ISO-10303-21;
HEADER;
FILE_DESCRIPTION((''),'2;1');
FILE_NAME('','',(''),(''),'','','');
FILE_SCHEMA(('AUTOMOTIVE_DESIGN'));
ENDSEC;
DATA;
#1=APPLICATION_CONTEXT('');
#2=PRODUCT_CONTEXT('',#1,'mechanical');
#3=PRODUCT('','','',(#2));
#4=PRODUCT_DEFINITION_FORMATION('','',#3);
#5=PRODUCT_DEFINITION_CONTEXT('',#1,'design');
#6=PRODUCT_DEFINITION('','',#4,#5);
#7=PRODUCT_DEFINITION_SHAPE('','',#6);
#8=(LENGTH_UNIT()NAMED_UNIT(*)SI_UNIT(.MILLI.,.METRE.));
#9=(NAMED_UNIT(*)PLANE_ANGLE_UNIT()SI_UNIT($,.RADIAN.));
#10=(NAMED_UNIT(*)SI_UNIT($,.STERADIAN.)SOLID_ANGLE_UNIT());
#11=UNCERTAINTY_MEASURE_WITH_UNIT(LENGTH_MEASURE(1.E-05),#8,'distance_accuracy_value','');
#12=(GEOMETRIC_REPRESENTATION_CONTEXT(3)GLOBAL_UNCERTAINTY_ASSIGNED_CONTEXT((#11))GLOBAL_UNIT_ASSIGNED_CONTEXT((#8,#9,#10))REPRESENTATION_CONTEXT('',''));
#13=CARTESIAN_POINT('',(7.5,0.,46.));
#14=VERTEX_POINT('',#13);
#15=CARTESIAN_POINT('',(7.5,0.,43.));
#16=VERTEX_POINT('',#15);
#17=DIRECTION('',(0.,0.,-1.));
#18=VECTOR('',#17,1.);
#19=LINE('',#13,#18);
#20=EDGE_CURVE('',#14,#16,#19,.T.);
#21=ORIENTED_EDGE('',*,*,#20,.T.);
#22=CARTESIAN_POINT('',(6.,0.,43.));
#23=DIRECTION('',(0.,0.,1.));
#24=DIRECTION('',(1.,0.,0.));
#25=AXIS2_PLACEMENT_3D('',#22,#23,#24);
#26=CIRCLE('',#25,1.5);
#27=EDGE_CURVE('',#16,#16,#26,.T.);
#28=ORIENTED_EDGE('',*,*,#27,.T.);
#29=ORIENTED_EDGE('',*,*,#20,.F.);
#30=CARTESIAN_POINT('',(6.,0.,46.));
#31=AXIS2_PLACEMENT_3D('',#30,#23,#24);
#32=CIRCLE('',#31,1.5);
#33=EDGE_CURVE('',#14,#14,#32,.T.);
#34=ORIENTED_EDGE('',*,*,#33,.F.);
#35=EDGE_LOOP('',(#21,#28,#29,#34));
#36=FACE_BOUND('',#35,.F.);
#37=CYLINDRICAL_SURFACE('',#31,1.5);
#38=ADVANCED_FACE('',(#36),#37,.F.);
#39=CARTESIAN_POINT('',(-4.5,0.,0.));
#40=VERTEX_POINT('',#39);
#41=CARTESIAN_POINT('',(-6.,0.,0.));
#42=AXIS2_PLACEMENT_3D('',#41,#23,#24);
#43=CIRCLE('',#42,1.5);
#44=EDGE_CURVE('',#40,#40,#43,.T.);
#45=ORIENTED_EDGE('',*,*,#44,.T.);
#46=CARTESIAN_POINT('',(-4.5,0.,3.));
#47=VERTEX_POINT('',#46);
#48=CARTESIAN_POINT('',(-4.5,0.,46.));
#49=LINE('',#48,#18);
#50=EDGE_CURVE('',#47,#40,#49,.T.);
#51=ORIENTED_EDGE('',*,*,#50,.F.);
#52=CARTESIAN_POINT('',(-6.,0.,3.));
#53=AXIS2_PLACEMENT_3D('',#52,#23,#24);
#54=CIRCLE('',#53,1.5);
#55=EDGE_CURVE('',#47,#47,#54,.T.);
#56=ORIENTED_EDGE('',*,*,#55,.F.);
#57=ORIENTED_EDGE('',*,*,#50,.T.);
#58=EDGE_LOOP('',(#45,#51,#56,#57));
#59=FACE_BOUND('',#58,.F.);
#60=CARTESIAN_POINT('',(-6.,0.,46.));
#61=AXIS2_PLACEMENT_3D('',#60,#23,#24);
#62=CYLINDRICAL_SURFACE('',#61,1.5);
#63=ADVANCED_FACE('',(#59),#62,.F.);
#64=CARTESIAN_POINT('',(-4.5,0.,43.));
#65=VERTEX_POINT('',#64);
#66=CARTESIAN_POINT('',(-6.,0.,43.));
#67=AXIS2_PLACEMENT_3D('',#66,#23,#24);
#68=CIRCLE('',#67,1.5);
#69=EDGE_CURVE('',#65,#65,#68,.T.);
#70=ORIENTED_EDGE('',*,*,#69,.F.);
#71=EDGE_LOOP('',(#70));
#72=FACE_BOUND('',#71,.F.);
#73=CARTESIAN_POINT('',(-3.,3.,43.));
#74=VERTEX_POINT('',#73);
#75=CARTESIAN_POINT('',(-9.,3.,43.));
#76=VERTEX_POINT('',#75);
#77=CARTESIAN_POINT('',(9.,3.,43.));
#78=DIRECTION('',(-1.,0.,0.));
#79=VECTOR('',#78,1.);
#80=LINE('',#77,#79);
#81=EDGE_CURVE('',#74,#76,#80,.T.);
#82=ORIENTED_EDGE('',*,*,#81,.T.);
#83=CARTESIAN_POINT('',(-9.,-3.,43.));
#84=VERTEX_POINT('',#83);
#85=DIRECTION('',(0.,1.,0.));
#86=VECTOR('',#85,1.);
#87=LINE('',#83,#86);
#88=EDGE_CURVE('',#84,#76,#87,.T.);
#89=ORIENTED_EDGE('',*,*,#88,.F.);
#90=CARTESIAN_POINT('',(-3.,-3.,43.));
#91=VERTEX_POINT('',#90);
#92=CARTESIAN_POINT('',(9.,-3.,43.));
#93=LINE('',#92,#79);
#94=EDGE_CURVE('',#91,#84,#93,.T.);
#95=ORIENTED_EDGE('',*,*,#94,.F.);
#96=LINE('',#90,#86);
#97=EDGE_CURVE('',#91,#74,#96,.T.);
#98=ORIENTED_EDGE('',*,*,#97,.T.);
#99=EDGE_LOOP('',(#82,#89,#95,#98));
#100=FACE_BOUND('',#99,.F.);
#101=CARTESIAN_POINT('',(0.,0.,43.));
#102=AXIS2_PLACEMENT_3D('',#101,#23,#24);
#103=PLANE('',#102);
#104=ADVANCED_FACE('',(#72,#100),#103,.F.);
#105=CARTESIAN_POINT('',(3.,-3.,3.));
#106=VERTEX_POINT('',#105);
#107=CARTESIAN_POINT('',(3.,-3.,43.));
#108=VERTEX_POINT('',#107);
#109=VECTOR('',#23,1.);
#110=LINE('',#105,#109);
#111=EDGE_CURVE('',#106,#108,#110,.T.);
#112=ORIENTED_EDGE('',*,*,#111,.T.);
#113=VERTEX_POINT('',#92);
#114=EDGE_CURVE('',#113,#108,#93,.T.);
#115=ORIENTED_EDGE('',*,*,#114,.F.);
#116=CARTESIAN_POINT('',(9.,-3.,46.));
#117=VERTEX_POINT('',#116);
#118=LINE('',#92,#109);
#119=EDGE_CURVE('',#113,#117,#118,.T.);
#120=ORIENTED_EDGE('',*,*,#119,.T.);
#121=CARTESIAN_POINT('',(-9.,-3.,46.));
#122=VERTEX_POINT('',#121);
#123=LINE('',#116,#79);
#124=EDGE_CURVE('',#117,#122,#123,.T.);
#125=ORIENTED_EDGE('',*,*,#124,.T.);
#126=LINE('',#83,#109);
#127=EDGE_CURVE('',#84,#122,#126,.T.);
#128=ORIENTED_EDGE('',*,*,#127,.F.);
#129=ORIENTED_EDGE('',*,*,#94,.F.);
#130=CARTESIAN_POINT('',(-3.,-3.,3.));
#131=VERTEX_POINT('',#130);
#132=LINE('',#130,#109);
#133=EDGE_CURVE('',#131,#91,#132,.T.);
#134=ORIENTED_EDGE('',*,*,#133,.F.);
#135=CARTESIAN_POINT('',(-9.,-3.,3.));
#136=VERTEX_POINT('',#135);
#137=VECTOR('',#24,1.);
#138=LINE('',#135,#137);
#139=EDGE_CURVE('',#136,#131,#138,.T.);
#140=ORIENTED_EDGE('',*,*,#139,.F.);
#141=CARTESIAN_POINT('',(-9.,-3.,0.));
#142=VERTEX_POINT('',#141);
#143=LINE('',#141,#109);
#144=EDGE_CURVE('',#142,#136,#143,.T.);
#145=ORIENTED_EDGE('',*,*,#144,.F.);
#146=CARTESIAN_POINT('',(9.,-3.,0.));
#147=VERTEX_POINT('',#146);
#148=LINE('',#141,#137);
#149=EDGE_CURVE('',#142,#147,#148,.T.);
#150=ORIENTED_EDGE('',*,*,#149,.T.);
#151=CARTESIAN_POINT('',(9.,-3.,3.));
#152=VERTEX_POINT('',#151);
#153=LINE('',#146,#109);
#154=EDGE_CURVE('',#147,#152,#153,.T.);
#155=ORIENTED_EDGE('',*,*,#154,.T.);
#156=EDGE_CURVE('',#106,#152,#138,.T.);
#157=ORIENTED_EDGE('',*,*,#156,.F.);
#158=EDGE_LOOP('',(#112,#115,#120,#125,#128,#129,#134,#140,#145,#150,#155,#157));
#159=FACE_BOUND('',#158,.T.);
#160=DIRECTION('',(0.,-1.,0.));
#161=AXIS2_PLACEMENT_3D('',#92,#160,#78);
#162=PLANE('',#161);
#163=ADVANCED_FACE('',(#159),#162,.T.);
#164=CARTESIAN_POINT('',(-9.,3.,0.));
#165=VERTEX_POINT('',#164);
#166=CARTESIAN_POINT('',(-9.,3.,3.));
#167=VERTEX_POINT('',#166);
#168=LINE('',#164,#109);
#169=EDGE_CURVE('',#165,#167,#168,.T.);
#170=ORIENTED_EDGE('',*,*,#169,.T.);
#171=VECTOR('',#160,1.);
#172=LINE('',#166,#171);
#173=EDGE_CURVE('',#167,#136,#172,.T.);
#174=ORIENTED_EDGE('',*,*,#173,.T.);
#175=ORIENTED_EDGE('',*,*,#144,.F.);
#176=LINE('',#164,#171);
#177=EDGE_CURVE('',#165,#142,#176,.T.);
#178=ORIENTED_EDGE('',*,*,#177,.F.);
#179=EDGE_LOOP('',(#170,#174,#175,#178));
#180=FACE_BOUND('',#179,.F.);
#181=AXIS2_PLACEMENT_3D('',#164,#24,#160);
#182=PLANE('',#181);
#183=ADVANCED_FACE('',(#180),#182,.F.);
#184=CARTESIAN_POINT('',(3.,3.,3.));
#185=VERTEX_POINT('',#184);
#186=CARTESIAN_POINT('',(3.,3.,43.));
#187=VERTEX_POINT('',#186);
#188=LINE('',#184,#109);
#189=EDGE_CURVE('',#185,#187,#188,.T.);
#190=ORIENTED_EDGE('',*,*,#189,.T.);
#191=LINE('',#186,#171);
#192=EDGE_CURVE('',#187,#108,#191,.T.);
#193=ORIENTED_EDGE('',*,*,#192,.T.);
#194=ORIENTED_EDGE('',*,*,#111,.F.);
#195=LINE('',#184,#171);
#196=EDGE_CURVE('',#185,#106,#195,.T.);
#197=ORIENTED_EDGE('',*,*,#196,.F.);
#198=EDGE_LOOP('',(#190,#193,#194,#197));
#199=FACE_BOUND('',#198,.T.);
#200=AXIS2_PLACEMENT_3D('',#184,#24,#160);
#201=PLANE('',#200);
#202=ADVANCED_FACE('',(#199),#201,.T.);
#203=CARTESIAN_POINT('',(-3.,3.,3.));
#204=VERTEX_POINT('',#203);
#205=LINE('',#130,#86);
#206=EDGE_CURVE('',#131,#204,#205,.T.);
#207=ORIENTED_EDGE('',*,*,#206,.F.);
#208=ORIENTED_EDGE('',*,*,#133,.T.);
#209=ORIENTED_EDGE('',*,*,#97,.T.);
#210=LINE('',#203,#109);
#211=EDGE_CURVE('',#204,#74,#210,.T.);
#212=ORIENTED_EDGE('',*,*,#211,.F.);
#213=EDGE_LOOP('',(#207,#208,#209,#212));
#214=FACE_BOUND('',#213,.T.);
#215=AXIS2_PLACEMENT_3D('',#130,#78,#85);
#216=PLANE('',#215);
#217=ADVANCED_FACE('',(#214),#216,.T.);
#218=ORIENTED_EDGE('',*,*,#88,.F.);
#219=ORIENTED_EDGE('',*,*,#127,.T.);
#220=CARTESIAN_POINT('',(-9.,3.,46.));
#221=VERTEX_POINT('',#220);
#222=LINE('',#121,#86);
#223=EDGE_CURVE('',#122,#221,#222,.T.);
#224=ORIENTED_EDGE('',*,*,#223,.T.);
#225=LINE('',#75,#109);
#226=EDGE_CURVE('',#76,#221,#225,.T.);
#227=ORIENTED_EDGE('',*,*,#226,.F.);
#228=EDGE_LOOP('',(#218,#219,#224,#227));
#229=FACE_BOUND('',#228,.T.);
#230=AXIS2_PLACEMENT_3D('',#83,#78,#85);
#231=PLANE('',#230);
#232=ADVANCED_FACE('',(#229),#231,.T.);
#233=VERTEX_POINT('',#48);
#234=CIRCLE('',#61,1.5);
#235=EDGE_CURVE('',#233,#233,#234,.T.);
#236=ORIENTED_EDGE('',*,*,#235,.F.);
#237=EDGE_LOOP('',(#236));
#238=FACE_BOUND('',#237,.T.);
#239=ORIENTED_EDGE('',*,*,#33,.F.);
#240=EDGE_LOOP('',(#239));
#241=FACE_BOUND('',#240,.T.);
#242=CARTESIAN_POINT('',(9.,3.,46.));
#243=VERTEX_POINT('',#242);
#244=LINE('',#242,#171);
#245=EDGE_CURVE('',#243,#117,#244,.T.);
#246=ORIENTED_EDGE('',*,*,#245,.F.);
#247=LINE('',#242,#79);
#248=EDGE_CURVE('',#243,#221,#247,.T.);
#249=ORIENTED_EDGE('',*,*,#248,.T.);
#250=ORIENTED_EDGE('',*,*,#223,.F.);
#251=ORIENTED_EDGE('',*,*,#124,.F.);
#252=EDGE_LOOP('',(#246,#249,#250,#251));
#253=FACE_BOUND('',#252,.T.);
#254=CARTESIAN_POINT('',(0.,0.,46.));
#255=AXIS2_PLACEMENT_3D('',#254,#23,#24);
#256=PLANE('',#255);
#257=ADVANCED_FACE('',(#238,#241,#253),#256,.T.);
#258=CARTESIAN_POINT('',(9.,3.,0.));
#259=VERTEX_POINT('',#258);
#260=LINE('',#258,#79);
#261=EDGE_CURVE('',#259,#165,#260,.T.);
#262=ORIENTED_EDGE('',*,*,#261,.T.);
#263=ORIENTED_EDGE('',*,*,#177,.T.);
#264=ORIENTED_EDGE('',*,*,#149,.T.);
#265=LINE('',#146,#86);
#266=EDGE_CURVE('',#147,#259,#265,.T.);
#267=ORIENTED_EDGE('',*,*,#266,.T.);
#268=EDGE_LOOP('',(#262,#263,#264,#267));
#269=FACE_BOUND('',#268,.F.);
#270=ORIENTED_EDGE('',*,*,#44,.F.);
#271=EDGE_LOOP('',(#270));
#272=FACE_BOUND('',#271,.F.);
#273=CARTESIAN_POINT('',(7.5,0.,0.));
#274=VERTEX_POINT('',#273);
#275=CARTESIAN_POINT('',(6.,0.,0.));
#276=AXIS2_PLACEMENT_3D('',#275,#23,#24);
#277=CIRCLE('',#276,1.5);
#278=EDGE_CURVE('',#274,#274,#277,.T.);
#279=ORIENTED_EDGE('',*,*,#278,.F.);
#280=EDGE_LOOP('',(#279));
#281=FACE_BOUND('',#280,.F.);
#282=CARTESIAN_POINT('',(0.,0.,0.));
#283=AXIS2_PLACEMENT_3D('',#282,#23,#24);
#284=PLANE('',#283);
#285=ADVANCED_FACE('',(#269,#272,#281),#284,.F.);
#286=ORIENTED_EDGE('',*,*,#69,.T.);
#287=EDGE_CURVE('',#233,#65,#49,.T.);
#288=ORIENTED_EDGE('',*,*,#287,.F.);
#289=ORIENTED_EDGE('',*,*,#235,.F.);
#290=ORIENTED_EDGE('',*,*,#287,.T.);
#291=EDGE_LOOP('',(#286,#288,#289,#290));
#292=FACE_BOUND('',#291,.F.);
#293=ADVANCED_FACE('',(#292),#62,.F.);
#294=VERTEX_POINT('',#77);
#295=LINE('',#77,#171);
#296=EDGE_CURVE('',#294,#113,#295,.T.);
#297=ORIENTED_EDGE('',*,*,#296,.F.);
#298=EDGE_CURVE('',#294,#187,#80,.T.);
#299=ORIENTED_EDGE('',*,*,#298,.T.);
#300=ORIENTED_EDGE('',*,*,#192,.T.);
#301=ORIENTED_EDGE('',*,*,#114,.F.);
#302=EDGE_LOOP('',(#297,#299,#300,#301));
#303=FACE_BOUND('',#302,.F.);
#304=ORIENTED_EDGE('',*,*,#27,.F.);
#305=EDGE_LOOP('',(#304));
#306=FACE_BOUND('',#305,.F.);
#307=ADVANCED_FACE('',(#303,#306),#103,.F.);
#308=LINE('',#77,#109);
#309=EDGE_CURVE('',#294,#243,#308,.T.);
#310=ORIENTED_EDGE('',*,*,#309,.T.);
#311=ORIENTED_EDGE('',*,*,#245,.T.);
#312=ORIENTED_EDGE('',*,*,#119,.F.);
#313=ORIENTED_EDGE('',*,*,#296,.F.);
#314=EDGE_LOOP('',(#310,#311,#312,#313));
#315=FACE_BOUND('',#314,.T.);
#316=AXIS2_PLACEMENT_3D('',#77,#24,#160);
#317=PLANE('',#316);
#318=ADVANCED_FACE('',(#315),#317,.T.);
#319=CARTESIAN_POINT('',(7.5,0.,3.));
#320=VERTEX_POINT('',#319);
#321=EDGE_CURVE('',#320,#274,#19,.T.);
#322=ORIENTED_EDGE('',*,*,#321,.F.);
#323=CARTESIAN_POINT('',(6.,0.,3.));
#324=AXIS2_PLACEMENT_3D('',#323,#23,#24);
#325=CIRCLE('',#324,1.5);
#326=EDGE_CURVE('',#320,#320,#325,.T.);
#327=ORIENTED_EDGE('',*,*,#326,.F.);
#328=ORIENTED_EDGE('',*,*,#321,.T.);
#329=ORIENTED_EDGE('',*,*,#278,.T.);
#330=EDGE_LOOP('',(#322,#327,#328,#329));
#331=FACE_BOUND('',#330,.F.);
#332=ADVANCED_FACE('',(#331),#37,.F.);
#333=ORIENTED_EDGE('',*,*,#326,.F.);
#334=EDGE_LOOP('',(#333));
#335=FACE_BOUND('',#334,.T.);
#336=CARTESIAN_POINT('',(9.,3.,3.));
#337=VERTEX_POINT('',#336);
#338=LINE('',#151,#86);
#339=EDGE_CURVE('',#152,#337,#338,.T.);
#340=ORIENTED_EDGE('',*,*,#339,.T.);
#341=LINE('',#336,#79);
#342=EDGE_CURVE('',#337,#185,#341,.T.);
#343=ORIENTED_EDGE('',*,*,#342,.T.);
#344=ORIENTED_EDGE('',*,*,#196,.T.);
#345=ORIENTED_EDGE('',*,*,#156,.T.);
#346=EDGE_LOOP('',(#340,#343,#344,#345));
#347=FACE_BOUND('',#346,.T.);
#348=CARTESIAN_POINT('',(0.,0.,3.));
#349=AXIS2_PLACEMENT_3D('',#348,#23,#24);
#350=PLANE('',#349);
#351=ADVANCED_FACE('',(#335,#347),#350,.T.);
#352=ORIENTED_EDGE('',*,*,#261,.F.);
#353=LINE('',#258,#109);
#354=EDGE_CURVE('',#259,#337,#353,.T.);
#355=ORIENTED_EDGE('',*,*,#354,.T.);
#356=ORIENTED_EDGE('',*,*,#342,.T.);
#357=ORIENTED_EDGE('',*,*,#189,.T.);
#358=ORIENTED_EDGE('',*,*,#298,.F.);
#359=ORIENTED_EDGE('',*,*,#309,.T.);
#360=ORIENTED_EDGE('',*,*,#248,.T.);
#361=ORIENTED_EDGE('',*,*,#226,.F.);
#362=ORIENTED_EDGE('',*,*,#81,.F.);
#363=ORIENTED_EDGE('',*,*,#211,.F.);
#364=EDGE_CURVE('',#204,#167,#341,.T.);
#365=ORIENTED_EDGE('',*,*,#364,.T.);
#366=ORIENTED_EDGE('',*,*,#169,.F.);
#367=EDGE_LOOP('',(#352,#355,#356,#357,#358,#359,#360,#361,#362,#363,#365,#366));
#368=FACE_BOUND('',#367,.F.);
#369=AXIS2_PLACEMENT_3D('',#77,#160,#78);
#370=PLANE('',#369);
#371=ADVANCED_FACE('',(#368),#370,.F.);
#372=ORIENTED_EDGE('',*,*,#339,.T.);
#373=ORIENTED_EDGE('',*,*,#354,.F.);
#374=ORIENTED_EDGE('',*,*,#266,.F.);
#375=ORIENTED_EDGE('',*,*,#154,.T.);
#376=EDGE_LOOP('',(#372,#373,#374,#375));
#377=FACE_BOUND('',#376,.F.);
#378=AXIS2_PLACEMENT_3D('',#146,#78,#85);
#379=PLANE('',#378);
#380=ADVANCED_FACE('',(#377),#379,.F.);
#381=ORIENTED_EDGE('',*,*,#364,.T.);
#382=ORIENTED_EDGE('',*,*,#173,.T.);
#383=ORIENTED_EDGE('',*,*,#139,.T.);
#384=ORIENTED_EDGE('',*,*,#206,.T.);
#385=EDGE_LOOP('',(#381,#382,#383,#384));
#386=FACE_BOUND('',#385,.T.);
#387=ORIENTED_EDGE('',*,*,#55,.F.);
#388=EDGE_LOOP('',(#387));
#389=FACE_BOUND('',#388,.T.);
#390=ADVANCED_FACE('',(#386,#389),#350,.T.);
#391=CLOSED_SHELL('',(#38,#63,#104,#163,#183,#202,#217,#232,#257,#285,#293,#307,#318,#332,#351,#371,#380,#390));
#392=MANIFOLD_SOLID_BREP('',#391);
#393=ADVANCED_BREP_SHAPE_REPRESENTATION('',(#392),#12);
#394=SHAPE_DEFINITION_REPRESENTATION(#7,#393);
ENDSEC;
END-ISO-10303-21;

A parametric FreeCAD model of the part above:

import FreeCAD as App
import Part
import Sketcher

V = App.Vector
Q = App.Units.Quantity

doc = App.newDocument("Part")
body = doc.addObject("PartDesign::Body", "Body")

# Sketch on XY plane
sketch1 = body.newObject("Sketcher::SketchObject", "Sketch")
sketch1.AttachmentSupport = (doc.getObject("XY_Plane"), [""])
sketch1.MapMode = "FlatFace"
sketch1.addGeometry([
    Part.LineSegment(V(-9, 3, 0), V(-9, -3, 0)),
    Part.LineSegment(V(-9, -3, 0), V(9, -3, 0)),
    Part.LineSegment(V(9, -3, 0), V(9, 3, 0)),
    Part.LineSegment(V(9, 3, 0), V(-9, 3, 0)),
], False)
sketch1.addConstraint([
    Sketcher.Constraint("Coincident", 0, 2, 1, 1),
    Sketcher.Constraint("Coincident", 1, 2, 2, 1),
    Sketcher.Constraint("Coincident", 2, 2, 3, 1),
    Sketcher.Constraint("Coincident", 3, 2, 0, 1),
    Sketcher.Constraint("Vertical", 0),
    Sketcher.Constraint("Horizontal", 1),
    Sketcher.Constraint("Vertical", 2),
    Sketcher.Constraint("Horizontal", 3),
    Sketcher.Constraint("Symmetric", 0, 2, 2, 2, -1, 1),
    Sketcher.Constraint("DistanceX", 1, 1, 1, 2, Q("18 mm")),
    Sketcher.Constraint("DistanceY", 0, 2, 0, 1, Q("6 mm")),
])
pad1 = body.newObject("PartDesign::Pad", "Pad")
pad1.Profile = sketch1
pad1.Length = 3

# Sketch on XY plane
sketch2 = body.newObject("Sketcher::SketchObject", "Sketch001")
sketch2.AttachmentSupport = (doc.getObject("XY_Plane"), [""])
sketch2.MapMode = "FlatFace"
sketch2.AttachmentOffset = App.Placement(V(0, 0, 3), App.Rotation())
sketch2.addGeometry([
    Part.LineSegment(V(3, 3, 0), V(-3, 3, 0)),
    Part.LineSegment(V(-3, 3, 0), V(-3, -3, 0)),
    Part.LineSegment(V(-3, -3, 0), V(3, -3, 0)),
    Part.LineSegment(V(3, -3, 0), V(3, 3, 0)),
], False)
sketch2.addConstraint([
    Sketcher.Constraint("Coincident", 0, 2, 1, 1),
    Sketcher.Constraint("Coincident", 1, 2, 2, 1),
    Sketcher.Constraint("Coincident", 2, 2, 3, 1),
    Sketcher.Constraint("Coincident", 3, 2, 0, 1),
    Sketcher.Constraint("Horizontal", 0),
    Sketcher.Constraint("Vertical", 1),
    Sketcher.Constraint("Horizontal", 2),
    Sketcher.Constraint("Vertical", 3),
    Sketcher.Constraint("Symmetric", 0, 2, 2, 2, -1, 1),
    Sketcher.Constraint("Equal", 2, 1),
    Sketcher.Constraint("DistanceX", 0, 2, 0, 1, Q("6 mm")),
])
pad2 = body.newObject("PartDesign::Pad", "Pad001")
pad2.Profile = sketch2
pad2.Length = 40

# Sketch on XY plane
sketch3 = body.newObject("Sketcher::SketchObject", "Sketch002")
sketch3.AttachmentSupport = (doc.getObject("XY_Plane"), [""])
sketch3.MapMode = "FlatFace"
sketch3.AttachmentOffset = App.Placement(V(0, 0, 43), App.Rotation())
sketch3.addGeometry([
    Part.LineSegment(V(9, -3, 0), V(9, 3, 0)),
    Part.LineSegment(V(9, 3, 0), V(-9, 3, 0)),
    Part.LineSegment(V(-9, 3, 0), V(-9, -3, 0)),
    Part.LineSegment(V(-9, -3, 0), V(9, -3, 0)),
], False)
sketch3.addConstraint([
    Sketcher.Constraint("Coincident", 0, 2, 1, 1),
    Sketcher.Constraint("Coincident", 1, 2, 2, 1),
    Sketcher.Constraint("Coincident", 2, 2, 3, 1),
    Sketcher.Constraint("Coincident", 3, 2, 0, 1),
    Sketcher.Constraint("Vertical", 0),
    Sketcher.Constraint("Horizontal", 1),
    Sketcher.Constraint("Vertical", 2),
    Sketcher.Constraint("Horizontal", 3),
    Sketcher.Constraint("Symmetric", 0, 2, 2, 2, -1, 1),
    Sketcher.Constraint("DistanceX", 1, 2, 1, 1, Q("18 mm")),
    Sketcher.Constraint("DistanceY", 0, 1, 0, 2, Q("6 mm")),
])
pad3 = body.newObject("PartDesign::Pad", "Pad002")
pad3.Profile = sketch3
pad3.Length = 3

# Sketch on XY plane
sketch4 = body.newObject("Sketcher::SketchObject", "Sketch003")
sketch4.AttachmentSupport = (doc.getObject("XY_Plane"), [""])
sketch4.MapMode = "FlatFace"
sketch4.AttachmentOffset = App.Placement(V(0, 0, 46), App.Rotation())
sketch4.addGeometry([
    Part.Circle(V(6, 0, 0), V(0, 0, 1), 1.5),
    Part.Circle(V(-6, 0, 0), V(0, 0, 1), 1.5),
], False)
sketch4.addConstraint([
    Sketcher.Constraint("Equal", 0, 1),
    Sketcher.Constraint("Symmetric", 0, 3, 1, 3, -1, 1),
    Sketcher.Constraint("PointOnObject", 0, 3, -1),
    Sketcher.Constraint("Diameter", 0, Q("3 mm")),
    Sketcher.Constraint("DistanceX", -1, 1, 0, 3, Q("6 mm")),
])
pocket1 = body.newObject("PartDesign::Pocket", "Pocket")
pocket1.Profile = sketch4
pocket1.Length = 46

doc.recompute()
